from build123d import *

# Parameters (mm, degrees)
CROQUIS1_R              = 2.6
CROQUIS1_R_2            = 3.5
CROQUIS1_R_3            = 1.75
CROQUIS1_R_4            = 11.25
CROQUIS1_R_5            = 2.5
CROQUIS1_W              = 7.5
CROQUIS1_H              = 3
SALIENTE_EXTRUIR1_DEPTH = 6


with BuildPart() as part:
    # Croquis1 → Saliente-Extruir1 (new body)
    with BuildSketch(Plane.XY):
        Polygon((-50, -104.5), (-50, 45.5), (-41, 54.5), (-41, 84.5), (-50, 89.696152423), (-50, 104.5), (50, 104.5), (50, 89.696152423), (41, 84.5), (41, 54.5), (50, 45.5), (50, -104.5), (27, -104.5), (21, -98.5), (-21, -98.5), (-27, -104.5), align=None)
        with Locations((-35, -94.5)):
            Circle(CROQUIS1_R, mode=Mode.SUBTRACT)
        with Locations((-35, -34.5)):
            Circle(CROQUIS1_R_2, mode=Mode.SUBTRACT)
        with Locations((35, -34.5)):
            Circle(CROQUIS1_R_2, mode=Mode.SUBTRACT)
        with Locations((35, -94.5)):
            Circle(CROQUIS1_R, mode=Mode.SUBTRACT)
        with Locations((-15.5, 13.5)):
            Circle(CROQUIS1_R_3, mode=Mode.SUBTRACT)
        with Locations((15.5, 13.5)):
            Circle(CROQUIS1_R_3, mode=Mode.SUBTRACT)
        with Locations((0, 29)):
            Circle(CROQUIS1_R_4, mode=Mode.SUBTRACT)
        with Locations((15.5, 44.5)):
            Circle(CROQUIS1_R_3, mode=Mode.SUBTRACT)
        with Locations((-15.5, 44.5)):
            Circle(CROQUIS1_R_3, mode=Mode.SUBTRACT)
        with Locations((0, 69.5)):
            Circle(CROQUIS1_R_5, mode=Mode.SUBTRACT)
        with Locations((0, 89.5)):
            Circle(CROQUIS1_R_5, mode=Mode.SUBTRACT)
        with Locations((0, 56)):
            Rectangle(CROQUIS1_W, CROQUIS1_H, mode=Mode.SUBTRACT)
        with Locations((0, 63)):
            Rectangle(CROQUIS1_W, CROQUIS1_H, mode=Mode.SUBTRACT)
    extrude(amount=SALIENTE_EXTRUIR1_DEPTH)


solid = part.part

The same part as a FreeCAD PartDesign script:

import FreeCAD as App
import Part
import Sketcher

V = App.Vector
Q = App.Units.Quantity


def add_polygon(sketch, points):
    """Adds a closed chain of lines whose ends are joined by coincident constraints."""
    first, n = sketch.GeometryCount, len(points)
    for a, b in zip(points, points[1:] + points[:1]):
        sketch.addGeometry(Part.LineSegment(App.Vector(*a, 0), App.Vector(*b, 0)), False)
    for i in range(n):
        sketch.addConstraint(Sketcher.Constraint("Coincident", first + i, 2, first + (i + 1) % n, 1))

doc = App.newDocument("Part")
body = doc.addObject("PartDesign::Body", "Body")

sketch1 = doc.addObject("Sketcher::SketchObject", "Sketch")
body.addObject(sketch1)
sketch1.AttachmentSupport = (doc.XY_Plane, [""])
sketch1.MapMode = "FlatFace"
add_polygon(sketch1, [(-50, 45.5), (-50, -104.5), (-27, -104.5), (-21, -98.5), (21, -98.5), (27, -104.5), (50, -104.5), (50, 45.5), (41, 54.5), (41, 84.5), (50, 89.7), (50, 104.5), (-50, 104.5), (-50, 89.7), (-41, 84.5), (-41, 54.5)])
sketch1.addGeometry(Part.Circle(V(35, -94.5, 0), V(0, 0, 1), 2.6), False)
sketch1.addGeometry(Part.Circle(V(35, -34.5, 0), V(0, 0, 1), 3.5), False)
sketch1.addGeometry(Part.Circle(V(-35, -94.5, 0), V(0, 0, 1), 2.6), False)
sketch1.addGeometry(Part.Circle(V(-35, -34.5, 0), V(0, 0, 1), 3.5), False)
sketch1.addGeometry(Part.Circle(V(15.5, 13.5, 0), V(0, 0, 1), 1.8), False)
sketch1.addGeometry(Part.Circle(V(15.5, 44.5, 0), V(0, 0, 1), 1.8), False)
sketch1.addGeometry(Part.Circle(V(-15.5, 13.5, 0), V(0, 0, 1), 1.8), False)
sketch1.addGeometry(Part.Circle(V(0, 29, 0), V(0, 0, 1), 11.2), False)
sketch1.addGeometry(Part.Circle(V(-15.5, 44.5, 0), V(0, 0, 1), 1.8), False)
add_polygon(sketch1, [(-3.8, 54.5), (-3.8, 57.5), (3.8, 57.5), (3.8, 54.5)])
add_polygon(sketch1, [(-3.8, 61.5), (-3.8, 64.5), (3.8, 64.5), (3.8, 61.5)])
sketch1.addGeometry(Part.Circle(V(0, 69.5, 0), V(0, 0, 1), 2.5), False)
sketch1.addGeometry(Part.Circle(V(0, 89.5, 0), V(0, 0, 1), 2.5), False)
sketch1.addConstraint([
    Sketcher.Constraint("Vertical", 0),
    Sketcher.Constraint("Horizontal", 1),
    Sketcher.Constraint("Horizontal", 3),
    Sketcher.Constraint("Horizontal", 5),
    Sketcher.Constraint("Vertical", 6),
    Sketcher.Constraint("Vertical", 8),
    Sketcher.Constraint("Vertical", 10),
    Sketcher.Constraint("Horizontal", 11),
    Sketcher.Constraint("Vertical", 12),
    Sketcher.Constraint("Vertical", 14),
    Sketcher.Constraint("Vertical", 25),
    Sketcher.Constraint("Horizontal", 26),
    Sketcher.Constraint("Vertical", 27),
    Sketcher.Constraint("Horizontal", 28),
    Sketcher.Constraint("Vertical", 29),
    Sketcher.Constraint("Horizontal", 30),
    Sketcher.Constraint("Vertical", 31),
    Sketcher.Constraint("Horizontal", 32),
    Sketcher.Constraint("Equal", 16, 18),
    Sketcher.Constraint("Equal", 17, 19),
    Sketcher.Constraint("Equal", 20, 21),
    Sketcher.Constraint("Equal", 21, 22),
    Sketcher.Constraint("Equal", 22, 24),
    Sketcher.Constraint("Equal", 33, 34),
    Sketcher.Constraint("Symmetric", 0, 2, 10, 2, -1, 1),
    Sketcher.Constraint("Symmetric", 5, 2, 11, 2, -1, 1),
    Sketcher.Constraint("Symmetric", 16, 3, 18, 3, -2),
    Sketcher.Constraint("Symmetric", 17, 3, 19, 3, -2),
    Sketcher.Constraint("Symmetric", 20, 3, 22, 3, -2),
    Sketcher.Constraint("Symmetric", 21, 3, 24, 3, -2),
    Sketcher.Constraint("Symmetric", 9, 2, 12, 2, -2),
    Sketcher.Constraint("Symmetric", 8, 2, 13, 2, -2),
    Sketcher.Constraint("PointOnObject", 23, 3, -2),
    Sketcher.Constraint("PointOnObject", 33, 3, -2),
    Sketcher.Constraint("PointOnObject", 34, 3, -2),
    Sketcher.Constraint("Perpendicular", 2, 4),
    Sketcher.Constraint("Parallel", 4, 7),
    Sketcher.Constraint("Perpendicular", 7, 15),
    Sketcher.Constraint("Horizontal", 7, 2, 14, 2),
    Sketcher.Constraint("Horizontal", 6, 2, 15, 2),
    Sketcher.Constraint("Horizontal", 14, 2, 27, 2),
    Sketcher.Constraint("Vertical", 16, 3, 17, 3),
    Sketcher.Constraint("Vertical", 20, 3, 21, 3),
    Sketcher.Constraint("Vertical", 28, 2, 29, 2),
    Sketcher.Constraint("Vertical", 27, 2, 30, 2),
    Sketcher.Constraint("Equal", 1, 5),
    Sketcher.Constraint("Equal", 27, 29),
    Sketcher.Constraint("Diameter", 17, 7.0),
    Sketcher.Constraint("Diameter", 33, 5.0),
    Sketcher.Constraint("Diameter", 16, 5.2),
    Sketcher.Constraint("Diameter", 20, 3.5),
    Sketcher.Constraint("Diameter", 23, 22.5),
    Sketcher.Constraint("DistanceX", 1, 1, 1, 2, 23.0),
    Sketcher.Constraint("DistanceX", 3, 1, 3, 2, 42.0),
    Sketcher.Constraint("DistanceX", 11, 2, 11, 1, 100.0),
    Sketcher.Constraint("DistanceY", 0, 2, 0, 1, 150.0),
    Sketcher.Constraint("DistanceY", 8, 1, 8, 2, 30.0),
    Sketcher.Constraint("DistanceY", 25, 1, 25, 2, 3.0),
    Sketcher.Constraint("Angle", 9, Q("30 deg")),
    Sketcher.Constraint("DistanceX", 26, 1, 26, 2, 7.5),
    Sketcher.Constraint("DistanceX", -1, 1, 16, 3, 35.0),
    Sketcher.Constraint("DistanceY", -1, 1, 23, 3, 29.0),
    Sketcher.Constraint("DistanceX", -1, 1, 7, 2, 41.0),
    Sketcher.Constraint("DistanceY", 16, 3, 17, 3, 60.0),
    Sketcher.Constraint("DistanceY", 17, 3, 20, 3, 48.0),
    Sketcher.Constraint("DistanceY", 20, 3, 21, 3, 31.0),
    Sketcher.Constraint("DistanceX", 22, 3, 20, 3, 31.0),
    Sketcher.Constraint("DistanceY", 21, 3, 33, 3, 25.0),
    Sketcher.Constraint("DistanceY", 33, 3, 34, 3, 20.0),
    Sketcher.Constraint("DistanceY", 0, 2, 18, 3, 10.0),
    Sketcher.Constraint("DistanceY", 8, 2, 10, 2, 20.0),
    Sketcher.Constraint("DistanceY", 29, 2, 33, 3, 5.0),
    Sketcher.Constraint("DistanceX", 25, 2, -1, 1, 3.75),
])
pad1 = doc.addObject("PartDesign::Pad", "Pad")
body.addObject(pad1)
pad1.Profile = sketch1
pad1.Length = 6

doc.recompute()
